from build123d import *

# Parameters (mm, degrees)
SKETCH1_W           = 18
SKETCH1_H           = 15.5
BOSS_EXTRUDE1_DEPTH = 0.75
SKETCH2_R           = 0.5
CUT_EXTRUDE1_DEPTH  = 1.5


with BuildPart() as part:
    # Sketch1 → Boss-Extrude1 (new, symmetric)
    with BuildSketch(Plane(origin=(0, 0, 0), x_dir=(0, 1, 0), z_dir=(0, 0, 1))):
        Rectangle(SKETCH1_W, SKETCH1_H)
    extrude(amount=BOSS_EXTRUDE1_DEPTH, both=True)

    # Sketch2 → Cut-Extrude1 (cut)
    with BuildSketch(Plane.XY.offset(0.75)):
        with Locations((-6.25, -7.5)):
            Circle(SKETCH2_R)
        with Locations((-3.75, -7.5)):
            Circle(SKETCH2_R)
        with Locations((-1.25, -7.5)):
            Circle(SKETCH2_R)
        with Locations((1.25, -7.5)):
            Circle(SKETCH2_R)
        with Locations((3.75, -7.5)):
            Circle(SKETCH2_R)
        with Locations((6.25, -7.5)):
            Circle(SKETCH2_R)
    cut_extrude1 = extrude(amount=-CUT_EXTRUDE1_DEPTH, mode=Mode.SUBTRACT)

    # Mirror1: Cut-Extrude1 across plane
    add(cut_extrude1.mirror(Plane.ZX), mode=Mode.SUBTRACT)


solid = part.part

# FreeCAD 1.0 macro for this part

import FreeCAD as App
import Part
import Sketcher
from FreeCAD import Vector


def add_polygon(sketch, points):
    """Adds a closed chain of lines whose ends are joined by coincident constraints."""
    first, n = sketch.GeometryCount, len(points)
    for a, b in zip(points, points[1:] + points[:1]):
        sketch.addGeometry(Part.LineSegment(App.Vector(*a, 0), App.Vector(*b, 0)), False)
    for i in range(n):
        sketch.addConstraint(Sketcher.Constraint("Coincident", first + i, 2, first + (i + 1) % n, 1))

doc = App.newDocument("Part")
body = doc.addObject("PartDesign::Body", "Body")

# Sketch on XY plane
sketch1 = body.newObject("Sketcher::SketchObject", "Sketch")
sketch1.AttachmentSupport = (doc.getObject("XY_Plane"), [""])
sketch1.MapMode = "FlatFace"
add_polygon(sketch1, [(-7.75, -9), (7.75, -9), (7.75, 9), (-7.75, 9)])  # lines 0-3
sketch1.addConstraint(Sketcher.Constraint("Horizontal", 0))
sketch1.addConstraint(Sketcher.Constraint("Vertical", 1))
sketch1.addConstraint(Sketcher.Constraint("Horizontal", 2))
sketch1.addConstraint(Sketcher.Constraint("Vertical", 3))
sketch1.addConstraint(Sketcher.Constraint("Symmetric", 0, 2, 2, 2, -1, 1))
sketch1.addConstraint(Sketcher.Constraint("DistanceY", 1, 1, 1, 2, 18.0))
sketch1.addConstraint(Sketcher.Constraint("DistanceX", 0, 1, 0, 2, 15.5))
pad1 = body.newObject("PartDesign::Pad", "Pad")
pad1.Profile = sketch1
pad1.Length = 1.5
pad1.Midplane = True

# Sketch on XY plane
sketch2 = body.newObject("Sketcher::SketchObject", "Sketch001")
sketch2.AttachmentSupport = (doc.getObject("XY_Plane"), [""])
sketch2.MapMode = "FlatFace"
sketch2.AttachmentOffset = App.Placement(Vector(0, 0, 0.75), App.Rotation())
sketch2.addGeometry(Part.Circle(Vector(-6.25, -7.5, 0), Vector(0, 0, 1), 0.5), False)
sketch2.addGeometry(Part.Circle(Vector(-3.75, -7.5, 0), Vector(0, 0, 1), 0.5), False)
sketch2.addGeometry(Part.Circle(Vector(-1.25, -7.5, 0), Vector(0, 0, 1), 0.5), False)
sketch2.addGeometry(Part.Circle(Vector(1.25, -7.5, 0), Vector(0, 0, 1), 0.5), False)
sketch2.addGeometry(Part.Circle(Vector(3.75, -7.5, 0), Vector(0, 0, 1), 0.5), False)
sketch2.addGeometry(Part.Circle(Vector(6.25, -7.5, 0), Vector(0, 0, 1), 0.5), False)
sketch2.addConstraint(Sketcher.Constraint("Equal", 0, 1))
sketch2.addConstraint(Sketcher.Constraint("Equal", 1, 2))
sketch2.addConstraint(Sketcher.Constraint("Equal", 2, 3))
sketch2.addConstraint(Sketcher.Constraint("Equal", 3, 4))
sketch2.addConstraint(Sketcher.Constraint("Equal", 4, 5))
sketch2.addConstraint(Sketcher.Constraint("Symmetric", 2, 3, 3, 3, -2))
sketch2.addConstraint(Sketcher.Constraint("Symmetric", 1, 3, 4, 3, -2))
sketch2.addConstraint(Sketcher.Constraint("Symmetric", 0, 3, 5, 3, -2))
sketch2.addConstraint(Sketcher.Constraint("Horizontal", 0, 3, 1, 3))
sketch2.addConstraint(Sketcher.Constraint("Horizontal", 1, 3, 2, 3))
sketch2.addConstraint(Sketcher.Constraint("Diameter", 0, 1.0))
sketch2.addConstraint(Sketcher.Constraint("DistanceX", 0, 3, 2, 3, 5.0))
sketch2.addConstraint(Sketcher.Constraint("DistanceX", 1, 3, 3, 3, 5.0))
sketch2.addConstraint(Sketcher.Constraint("DistanceY", 0, 3, -1, 1, 7.5))
sketch2.addConstraint(Sketcher.Constraint("DistanceX", 0, 3, 1, 3, 2.5))
pocket1 = body.newObject("PartDesign::Pocket", "Pocket")
pocket1.Profile = sketch2
pocket1.Length = 1.5
doc.recompute()

mirrored = body.newObject("PartDesign::Mirrored", "Mirrored")
mirrored.Originals = [pocket1]
mirrored.MirrorPlane = (doc.getObject("XZ_Plane"), [""])
body.Tip = mirrored

doc.recompute()
